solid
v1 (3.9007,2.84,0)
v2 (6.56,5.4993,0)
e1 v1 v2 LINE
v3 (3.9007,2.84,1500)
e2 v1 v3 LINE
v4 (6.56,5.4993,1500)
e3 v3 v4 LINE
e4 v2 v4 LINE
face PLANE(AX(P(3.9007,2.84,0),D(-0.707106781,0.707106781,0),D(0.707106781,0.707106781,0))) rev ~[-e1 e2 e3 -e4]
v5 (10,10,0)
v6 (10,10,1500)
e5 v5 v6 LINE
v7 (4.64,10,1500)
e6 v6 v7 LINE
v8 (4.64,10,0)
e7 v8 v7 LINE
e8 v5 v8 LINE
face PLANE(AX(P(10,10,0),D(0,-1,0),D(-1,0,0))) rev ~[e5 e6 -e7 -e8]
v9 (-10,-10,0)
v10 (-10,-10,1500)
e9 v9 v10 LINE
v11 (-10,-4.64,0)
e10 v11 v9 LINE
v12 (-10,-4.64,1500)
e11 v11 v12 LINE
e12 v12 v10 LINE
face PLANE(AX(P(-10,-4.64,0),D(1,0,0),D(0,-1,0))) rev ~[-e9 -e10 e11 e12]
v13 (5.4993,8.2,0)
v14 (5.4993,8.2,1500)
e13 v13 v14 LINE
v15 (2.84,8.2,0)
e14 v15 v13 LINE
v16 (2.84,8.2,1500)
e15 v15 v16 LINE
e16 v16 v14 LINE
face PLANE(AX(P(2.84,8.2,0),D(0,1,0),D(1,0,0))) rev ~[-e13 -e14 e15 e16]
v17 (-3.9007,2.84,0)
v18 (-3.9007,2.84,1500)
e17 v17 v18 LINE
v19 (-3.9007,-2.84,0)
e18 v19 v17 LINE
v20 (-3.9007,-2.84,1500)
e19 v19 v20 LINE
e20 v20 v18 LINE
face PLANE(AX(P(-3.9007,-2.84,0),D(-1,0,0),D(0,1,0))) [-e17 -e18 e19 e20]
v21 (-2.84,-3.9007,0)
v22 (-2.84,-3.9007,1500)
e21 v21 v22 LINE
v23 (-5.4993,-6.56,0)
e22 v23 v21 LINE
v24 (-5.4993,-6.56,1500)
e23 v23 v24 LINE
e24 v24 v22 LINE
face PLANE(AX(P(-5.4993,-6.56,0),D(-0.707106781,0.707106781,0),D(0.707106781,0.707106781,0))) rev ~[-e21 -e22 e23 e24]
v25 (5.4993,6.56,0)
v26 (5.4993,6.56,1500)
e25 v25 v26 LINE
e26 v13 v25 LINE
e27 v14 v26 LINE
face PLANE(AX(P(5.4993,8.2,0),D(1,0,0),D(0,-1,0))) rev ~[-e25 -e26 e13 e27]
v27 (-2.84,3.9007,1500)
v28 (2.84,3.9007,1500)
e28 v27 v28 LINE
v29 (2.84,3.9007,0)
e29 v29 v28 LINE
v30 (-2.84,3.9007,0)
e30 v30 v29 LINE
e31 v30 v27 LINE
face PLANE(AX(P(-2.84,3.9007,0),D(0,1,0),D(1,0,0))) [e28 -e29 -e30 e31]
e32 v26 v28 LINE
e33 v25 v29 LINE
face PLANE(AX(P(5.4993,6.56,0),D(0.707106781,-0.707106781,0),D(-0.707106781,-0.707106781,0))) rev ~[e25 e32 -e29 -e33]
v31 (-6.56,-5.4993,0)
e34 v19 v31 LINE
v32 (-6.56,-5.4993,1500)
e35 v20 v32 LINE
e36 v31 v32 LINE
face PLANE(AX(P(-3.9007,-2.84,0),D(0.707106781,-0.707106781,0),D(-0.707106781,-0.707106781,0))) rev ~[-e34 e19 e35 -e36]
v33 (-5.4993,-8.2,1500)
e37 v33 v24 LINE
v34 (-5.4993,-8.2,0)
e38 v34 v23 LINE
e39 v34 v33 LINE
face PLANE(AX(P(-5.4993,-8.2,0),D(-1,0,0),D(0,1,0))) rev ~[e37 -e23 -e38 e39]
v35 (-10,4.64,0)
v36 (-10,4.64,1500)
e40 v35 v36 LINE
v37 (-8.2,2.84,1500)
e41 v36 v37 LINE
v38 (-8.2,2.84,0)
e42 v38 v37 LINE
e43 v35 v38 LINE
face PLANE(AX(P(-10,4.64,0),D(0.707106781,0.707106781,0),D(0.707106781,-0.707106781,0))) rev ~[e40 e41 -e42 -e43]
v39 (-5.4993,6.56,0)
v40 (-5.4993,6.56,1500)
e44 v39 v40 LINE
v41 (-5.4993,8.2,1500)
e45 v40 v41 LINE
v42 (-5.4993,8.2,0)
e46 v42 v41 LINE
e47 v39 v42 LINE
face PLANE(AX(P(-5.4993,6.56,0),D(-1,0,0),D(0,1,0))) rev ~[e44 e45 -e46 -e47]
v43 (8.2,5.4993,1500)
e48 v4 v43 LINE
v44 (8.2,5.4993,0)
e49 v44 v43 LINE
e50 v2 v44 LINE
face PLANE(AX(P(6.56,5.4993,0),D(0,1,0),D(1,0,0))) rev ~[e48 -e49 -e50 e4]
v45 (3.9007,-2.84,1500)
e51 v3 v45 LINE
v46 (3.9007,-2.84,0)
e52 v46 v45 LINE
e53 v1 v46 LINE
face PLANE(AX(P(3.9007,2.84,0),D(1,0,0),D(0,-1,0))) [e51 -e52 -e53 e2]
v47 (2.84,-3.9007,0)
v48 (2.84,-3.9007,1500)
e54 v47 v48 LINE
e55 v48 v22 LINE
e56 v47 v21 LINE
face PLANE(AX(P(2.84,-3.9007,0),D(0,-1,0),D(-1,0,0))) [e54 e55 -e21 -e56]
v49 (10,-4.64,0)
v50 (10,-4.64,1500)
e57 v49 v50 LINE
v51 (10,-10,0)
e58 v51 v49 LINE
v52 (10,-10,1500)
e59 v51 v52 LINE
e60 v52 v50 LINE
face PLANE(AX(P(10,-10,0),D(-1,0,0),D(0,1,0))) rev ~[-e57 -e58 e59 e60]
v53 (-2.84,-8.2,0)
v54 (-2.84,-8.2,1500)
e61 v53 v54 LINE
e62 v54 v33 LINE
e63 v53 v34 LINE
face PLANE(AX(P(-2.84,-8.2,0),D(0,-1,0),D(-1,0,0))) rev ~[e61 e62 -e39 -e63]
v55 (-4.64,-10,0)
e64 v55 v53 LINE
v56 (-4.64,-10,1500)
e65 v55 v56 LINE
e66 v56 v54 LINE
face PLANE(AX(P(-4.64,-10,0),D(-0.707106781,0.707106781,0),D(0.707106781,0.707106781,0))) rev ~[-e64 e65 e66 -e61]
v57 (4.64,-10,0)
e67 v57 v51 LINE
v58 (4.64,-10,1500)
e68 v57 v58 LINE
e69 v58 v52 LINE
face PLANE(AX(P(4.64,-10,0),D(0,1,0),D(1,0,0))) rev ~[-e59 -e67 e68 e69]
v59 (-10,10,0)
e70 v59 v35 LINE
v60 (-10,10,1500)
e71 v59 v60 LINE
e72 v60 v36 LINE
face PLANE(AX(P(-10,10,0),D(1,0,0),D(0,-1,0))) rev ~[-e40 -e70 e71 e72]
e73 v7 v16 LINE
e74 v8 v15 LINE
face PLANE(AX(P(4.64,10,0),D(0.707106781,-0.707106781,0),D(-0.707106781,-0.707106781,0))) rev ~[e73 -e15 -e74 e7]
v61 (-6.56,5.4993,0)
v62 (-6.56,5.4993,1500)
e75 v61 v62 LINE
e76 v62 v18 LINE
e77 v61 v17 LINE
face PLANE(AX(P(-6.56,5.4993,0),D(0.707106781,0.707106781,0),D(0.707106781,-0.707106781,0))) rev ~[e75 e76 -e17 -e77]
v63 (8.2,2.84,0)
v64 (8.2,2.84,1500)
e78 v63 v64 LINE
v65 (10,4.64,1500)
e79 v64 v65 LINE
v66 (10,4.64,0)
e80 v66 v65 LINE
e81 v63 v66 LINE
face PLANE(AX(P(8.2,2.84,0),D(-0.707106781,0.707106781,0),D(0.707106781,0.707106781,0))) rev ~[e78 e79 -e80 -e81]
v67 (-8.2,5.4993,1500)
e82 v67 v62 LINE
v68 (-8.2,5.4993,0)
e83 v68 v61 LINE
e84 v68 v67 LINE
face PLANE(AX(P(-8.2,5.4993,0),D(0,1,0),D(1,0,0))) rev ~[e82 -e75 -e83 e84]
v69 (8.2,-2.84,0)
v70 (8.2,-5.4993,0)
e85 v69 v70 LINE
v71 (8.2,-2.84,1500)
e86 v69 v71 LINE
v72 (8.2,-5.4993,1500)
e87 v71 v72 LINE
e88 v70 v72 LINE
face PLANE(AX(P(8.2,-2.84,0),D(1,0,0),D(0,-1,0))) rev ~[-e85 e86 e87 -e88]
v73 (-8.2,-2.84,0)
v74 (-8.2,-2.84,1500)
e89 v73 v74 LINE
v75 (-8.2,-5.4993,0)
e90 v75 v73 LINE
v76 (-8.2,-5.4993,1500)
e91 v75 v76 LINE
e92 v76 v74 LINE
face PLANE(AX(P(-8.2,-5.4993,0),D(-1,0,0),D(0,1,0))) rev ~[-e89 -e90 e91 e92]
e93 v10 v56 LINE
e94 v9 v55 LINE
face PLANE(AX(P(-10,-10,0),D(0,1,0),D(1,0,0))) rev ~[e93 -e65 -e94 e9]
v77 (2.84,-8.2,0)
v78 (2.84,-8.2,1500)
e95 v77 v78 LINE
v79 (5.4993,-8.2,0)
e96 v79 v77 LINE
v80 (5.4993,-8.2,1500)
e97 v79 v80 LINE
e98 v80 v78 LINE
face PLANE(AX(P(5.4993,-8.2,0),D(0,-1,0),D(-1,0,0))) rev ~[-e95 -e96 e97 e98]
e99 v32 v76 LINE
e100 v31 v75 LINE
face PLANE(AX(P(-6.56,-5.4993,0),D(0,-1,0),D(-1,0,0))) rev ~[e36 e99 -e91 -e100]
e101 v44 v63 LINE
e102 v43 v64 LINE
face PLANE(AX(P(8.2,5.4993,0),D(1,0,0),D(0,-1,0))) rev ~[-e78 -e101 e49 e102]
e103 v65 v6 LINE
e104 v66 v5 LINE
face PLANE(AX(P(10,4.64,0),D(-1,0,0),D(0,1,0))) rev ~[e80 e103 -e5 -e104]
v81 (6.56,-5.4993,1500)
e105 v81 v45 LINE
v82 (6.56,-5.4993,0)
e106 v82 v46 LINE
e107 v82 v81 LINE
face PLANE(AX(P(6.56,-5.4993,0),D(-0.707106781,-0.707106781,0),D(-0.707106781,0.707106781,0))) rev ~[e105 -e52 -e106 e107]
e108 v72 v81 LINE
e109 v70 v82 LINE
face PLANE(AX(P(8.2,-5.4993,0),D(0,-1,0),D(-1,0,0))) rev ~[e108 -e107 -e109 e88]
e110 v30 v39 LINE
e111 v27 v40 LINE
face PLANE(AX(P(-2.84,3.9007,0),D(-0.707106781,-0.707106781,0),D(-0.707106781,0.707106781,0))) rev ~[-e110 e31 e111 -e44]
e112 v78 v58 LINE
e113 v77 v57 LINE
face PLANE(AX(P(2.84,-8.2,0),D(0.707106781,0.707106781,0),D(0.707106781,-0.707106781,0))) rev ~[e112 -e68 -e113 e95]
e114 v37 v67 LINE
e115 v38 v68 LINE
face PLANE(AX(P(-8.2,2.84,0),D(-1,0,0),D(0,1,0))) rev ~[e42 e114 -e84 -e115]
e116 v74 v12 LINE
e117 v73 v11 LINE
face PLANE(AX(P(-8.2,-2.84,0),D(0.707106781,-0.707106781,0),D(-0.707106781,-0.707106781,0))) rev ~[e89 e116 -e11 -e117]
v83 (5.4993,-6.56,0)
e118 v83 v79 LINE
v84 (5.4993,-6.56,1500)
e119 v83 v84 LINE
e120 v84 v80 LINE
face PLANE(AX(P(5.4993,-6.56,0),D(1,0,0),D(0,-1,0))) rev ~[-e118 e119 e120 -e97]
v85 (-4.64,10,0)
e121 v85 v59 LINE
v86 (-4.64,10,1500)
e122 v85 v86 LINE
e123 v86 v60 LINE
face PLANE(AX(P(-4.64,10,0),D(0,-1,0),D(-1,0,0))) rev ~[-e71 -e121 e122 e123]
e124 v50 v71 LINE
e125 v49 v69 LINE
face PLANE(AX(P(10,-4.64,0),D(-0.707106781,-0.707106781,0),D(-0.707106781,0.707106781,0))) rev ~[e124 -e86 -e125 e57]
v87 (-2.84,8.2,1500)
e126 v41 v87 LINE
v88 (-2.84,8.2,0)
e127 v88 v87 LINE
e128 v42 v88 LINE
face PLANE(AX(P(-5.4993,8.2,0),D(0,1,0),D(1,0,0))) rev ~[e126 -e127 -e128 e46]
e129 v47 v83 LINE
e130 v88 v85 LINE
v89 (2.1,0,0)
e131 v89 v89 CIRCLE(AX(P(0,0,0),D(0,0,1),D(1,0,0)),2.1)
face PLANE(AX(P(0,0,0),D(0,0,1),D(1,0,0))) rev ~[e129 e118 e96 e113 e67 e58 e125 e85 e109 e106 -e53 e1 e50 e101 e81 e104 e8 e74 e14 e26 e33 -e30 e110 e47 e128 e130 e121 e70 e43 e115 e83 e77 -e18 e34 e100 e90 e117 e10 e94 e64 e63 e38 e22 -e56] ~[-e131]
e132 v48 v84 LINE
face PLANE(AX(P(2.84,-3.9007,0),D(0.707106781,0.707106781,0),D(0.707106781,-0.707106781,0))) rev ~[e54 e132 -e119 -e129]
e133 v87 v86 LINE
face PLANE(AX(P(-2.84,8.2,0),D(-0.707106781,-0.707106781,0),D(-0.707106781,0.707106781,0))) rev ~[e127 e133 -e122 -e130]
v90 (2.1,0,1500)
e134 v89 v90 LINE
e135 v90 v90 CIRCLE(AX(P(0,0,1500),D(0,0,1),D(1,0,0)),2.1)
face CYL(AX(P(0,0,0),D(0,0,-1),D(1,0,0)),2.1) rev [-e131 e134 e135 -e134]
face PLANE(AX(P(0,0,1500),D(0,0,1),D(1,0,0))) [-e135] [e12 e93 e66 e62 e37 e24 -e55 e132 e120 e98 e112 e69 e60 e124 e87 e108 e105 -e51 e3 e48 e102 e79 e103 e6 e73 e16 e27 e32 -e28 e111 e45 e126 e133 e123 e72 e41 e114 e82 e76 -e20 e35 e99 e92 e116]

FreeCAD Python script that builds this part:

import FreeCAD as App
import Part
import Sketcher

V = App.Vector
Q = App.Units.Quantity

doc = App.newDocument("Part")
params = doc.addObject("Spreadsheet::Sheet", "Params")
for row, (alias, value) in enumerate([
    ("sketch1_diameter", "4.2 mm"),
    ("sketch1_width", "1.64 mm"),
    ("pad1_length", "1500 mm"),
], start=1):
    params.set(f"A{row}", alias)
    params.set(f"B{row}", "=" + value)
    params.setAlias(f"B{row}", alias)

body = doc.addObject("PartDesign::Body", "Body")

# Sketch on XY plane
sketch1 = body.newObject("Sketcher::SketchObject", "Sketch")
sketch1.AttachmentSupport = (doc.getObject("XY_Plane"), [""])
sketch1.MapMode = "FlatFace"
sketch1.addGeometry(Part.LineSegment(V(-6.56, 5.4993, 0), V(-3.9007, 2.84, 0)), False)
sketch1.addGeometry(Part.LineSegment(V(-3.9007, 2.84, 0), V(-3.9007, -2.84, 0)), False)
sketch1.addGeometry(Part.LineSegment(V(-3.9007, -2.84, 0), V(-6.56, -5.4993, 0)), False)
sketch1.addGeometry(Part.LineSegment(V(-6.56, -5.4993, 0), V(-8.2, -5.4993, 0)), False)
sketch1.addGeometry(Part.LineSegment(V(-8.2, -5.4993, 0), V(-8.2, -2.84, 0)), False)
sketch1.addGeometry(Part.LineSegment(V(-8.2, -2.84, 0), V(-10, -4.64, 0)), False)
sketch1.addGeometry(Part.LineSegment(V(-10, -4.64, 0), V(-10, -10, 0)), False)
sketch1.addGeometry(Part.LineSegment(V(-10, -10, 0), V(-4.64, -10, 0)), False)
sketch1.addGeometry(Part.LineSegment(V(-4.64, -10, 0), V(-2.84, -8.2, 0)), False)
sketch1.addGeometry(Part.LineSegment(V(-2.84, -8.2, 0), V(-5.4993, -8.2, 0)), False)
sketch1.addGeometry(Part.LineSegment(V(-5.4993, -8.2, 0), V(-5.4993, -6.56, 0)), False)
sketch1.addGeometry(Part.LineSegment(V(-5.4993, -6.56, 0), V(-2.84, -3.9007, 0)), False)
sketch1.addGeometry(Part.LineSegment(V(-2.84, -3.9007, 0), V(2.84, -3.9007, 0)), False)
sketch1.addGeometry(Part.LineSegment(V(2.84, -3.9007, 0), V(5.4993, -6.56, 0)), False)
sketch1.addGeometry(Part.LineSegment(V(5.4993, -6.56, 0), V(5.4993, -8.2, 0)), False)
sketch1.addGeometry(Part.LineSegment(V(5.4993, -8.2, 0), V(2.84, -8.2, 0)), False)
sketch1.addGeometry(Part.LineSegment(V(2.84, -8.2, 0), V(4.64, -10, 0)), False)
sketch1.addGeometry(Part.LineSegment(V(4.64, -10, 0), V(10, -10, 0)), False)
sketch1.addGeometry(Part.LineSegment(V(10, -10, 0), V(10, -4.64, 0)), False)
sketch1.addGeometry(Part.LineSegment(V(10, -4.64, 0), V(8.2, -2.84, 0)), False)
sketch1.addGeometry(Part.LineSegment(V(8.2, -2.84, 0), V(8.2, -5.4993, 0)), False)
sketch1.addGeometry(Part.LineSegment(V(8.2, -5.4993, 0), V(6.56, -5.4993, 0)), False)
sketch1.addGeometry(Part.LineSegment(V(6.56, -5.4993, 0), V(3.9007, -2.84, 0)), False)
sketch1.addGeometry(Part.LineSegment(V(3.9007, -2.84, 0), V(3.9007, 2.84, 0)), False)
sketch1.addGeometry(Part.LineSegment(V(3.9007, 2.84, 0), V(6.56, 5.4993, 0)), False)
sketch1.addGeometry(Part.LineSegment(V(6.56, 5.4993, 0), V(8.2, 5.4993, 0)), False)
sketch1.addGeometry(Part.LineSegment(V(8.2, 5.4993, 0), V(8.2, 2.84, 0)), False)
sketch1.addGeometry(Part.LineSegment(V(8.2, 2.84, 0), V(10, 4.64, 0)), False)
sketch1.addGeometry(Part.LineSegment(V(10, 4.64, 0), V(10, 10, 0)), False)
sketch1.addGeometry(Part.LineSegment(V(10, 10, 0), V(4.64, 10, 0)), False)
sketch1.addGeometry(Part.LineSegment(V(4.64, 10, 0), V(2.84, 8.2, 0)), False)
sketch1.addGeometry(Part.LineSegment(V(2.84, 8.2, 0), V(5.4993, 8.2, 0)), False)
sketch1.addGeometry(Part.LineSegment(V(5.4993, 8.2, 0), V(5.4993, 6.56, 0)), False)
sketch1.addGeometry(Part.LineSegment(V(5.4993, 6.56, 0), V(2.84, 3.9007, 0)), False)
sketch1.addGeometry(Part.LineSegment(V(2.84, 3.9007, 0), V(-2.84, 3.9007, 0)), False)
sketch1.addGeometry(Part.LineSegment(V(-2.84, 3.9007, 0), V(-5.4993, 6.56, 0)), False)
sketch1.addGeometry(Part.LineSegment(V(-5.4993, 6.56, 0), V(-5.4993, 8.2, 0)), False)
sketch1.addGeometry(Part.LineSegment(V(-5.4993, 8.2, 0), V(-2.84, 8.2, 0)), False)
sketch1.addGeometry(Part.LineSegment(V(-2.84, 8.2, 0), V(-4.64, 10, 0)), False)
sketch1.addGeometry(Part.LineSegment(V(-4.64, 10, 0), V(-10, 10, 0)), False)
sketch1.addGeometry(Part.LineSegment(V(-10, 10, 0), V(-10, 4.64, 0)), False)
sketch1.addGeometry(Part.LineSegment(V(-10, 4.64, 0), V(-8.2, 2.84, 0)), False)
sketch1.addGeometry(Part.LineSegment(V(-8.2, 2.84, 0), V(-8.2, 5.4993, 0)), False)
sketch1.addGeometry(Part.LineSegment(V(-8.2, 5.4993, 0), V(-6.56, 5.4993, 0)), False)
sketch1.addGeometry(Part.Circle(V(0, 0, 0), V(0, 0, 1), 2.1), False)
sketch1.addConstraint(Sketcher.Constraint("Coincident", 0, 2, 1, 1))
sketch1.addConstraint(Sketcher.Constraint("Coincident", 1, 2, 2, 1))
sketch1.addConstraint(Sketcher.Constraint("Coincident", 2, 2, 3, 1))
sketch1.addConstraint(Sketcher.Constraint("Coincident", 3, 2, 4, 1))
sketch1.addConstraint(Sketcher.Constraint("Coincident", 4, 2, 5, 1))
sketch1.addConstraint(Sketcher.Constraint("Coincident", 5, 2, 6, 1))
sketch1.addConstraint(Sketcher.Constraint("Coincident", 6, 2, 7, 1))
sketch1.addConstraint(Sketcher.Constraint("Coincident", 7, 2, 8, 1))
sketch1.addConstraint(Sketcher.Constraint("Coincident", 8, 2, 9, 1))
sketch1.addConstraint(Sketcher.Constraint("Coincident", 9, 2, 10, 1))
sketch1.addConstraint(Sketcher.Constraint("Coincident", 10, 2, 11, 1))
sketch1.addConstraint(Sketcher.Constraint("Coincident", 11, 2, 12, 1))
sketch1.addConstraint(Sketcher.Constraint("Coincident", 12, 2, 13, 1))
sketch1.addConstraint(Sketcher.Constraint("Coincident", 13, 2, 14, 1))
sketch1.addConstraint(Sketcher.Constraint("Coincident", 14, 2, 15, 1))
sketch1.addConstraint(Sketcher.Constraint("Coincident", 15, 2, 16, 1))
sketch1.addConstraint(Sketcher.Constraint("Coincident", 16, 2, 17, 1))
sketch1.addConstraint(Sketcher.Constraint("Coincident", 17, 2, 18, 1))
sketch1.addConstraint(Sketcher.Constraint("Coincident", 18, 2, 19, 1))
sketch1.addConstraint(Sketcher.Constraint("Coincident", 19, 2, 20, 1))
sketch1.addConstraint(Sketcher.Constraint("Coincident", 20, 2, 21, 1))
sketch1.addConstraint(Sketcher.Constraint("Coincident", 21, 2, 22, 1))
sketch1.addConstraint(Sketcher.Constraint("Coincident", 22, 2, 23, 1))
sketch1.addConstraint(Sketcher.Constraint("Coincident", 23, 2, 24, 1))
sketch1.addConstraint(Sketcher.Constraint("Coincident", 24, 2, 25, 1))
sketch1.addConstraint(Sketcher.Constraint("Coincident", 25, 2, 26, 1))
sketch1.addConstraint(Sketcher.Constraint("Coincident", 26, 2, 27, 1))
sketch1.addConstraint(Sketcher.Constraint("Coincident", 27, 2, 28, 1))
sketch1.addConstraint(Sketcher.Constraint("Coincident", 28, 2, 29, 1))
sketch1.addConstraint(Sketcher.Constraint("Coincident", 29, 2, 30, 1))
sketch1.addConstraint(Sketcher.Constraint("Coincident", 30, 2, 31, 1))
sketch1.addConstraint(Sketcher.Constraint("Coincident", 31, 2, 32, 1))
sketch1.addConstraint(Sketcher.Constraint("Coincident", 32, 2, 33, 1))
sketch1.addConstraint(Sketcher.Constraint("Coincident", 33, 2, 34, 1))
sketch1.addConstraint(Sketcher.Constraint("Coincident", 34, 2, 35, 1))
sketch1.addConstraint(Sketcher.Constraint("Coincident", 35, 2, 36, 1))
sketch1.addConstraint(Sketcher.Constraint("Coincident", 36, 2, 37, 1))
sketch1.addConstraint(Sketcher.Constraint("Coincident", 37, 2, 38, 1))
sketch1.addConstraint(Sketcher.Constraint("Coincident", 38, 2, 39, 1))
sketch1.addConstraint(Sketcher.Constraint("Coincident", 39, 2, 40, 1))
sketch1.addConstraint(Sketcher.Constraint("Coincident", 40, 2, 41, 1))
sketch1.addConstraint(Sketcher.Constraint("Coincident", 41, 2, 42, 1))
sketch1.addConstraint(Sketcher.Constraint("Coincident", 42, 2, 43, 1))
sketch1.addConstraint(Sketcher.Constraint("Coincident", 43, 2, 0, 1))
sketch1.addConstraint(Sketcher.Constraint("Vertical", 1))
sketch1.addConstraint(Sketcher.Constraint("Horizontal", 3))
sketch1.addConstraint(Sketcher.Constraint("Vertical", 4))
sketch1.addConstraint(Sketcher.Constraint("Vertical", 6))
sketch1.addConstraint(Sketcher.Constraint("Horizontal", 7))
sketch1.addConstraint(Sketcher.Constraint("Horizontal", 9))
sketch1.addConstraint(Sketcher.Constraint("Vertical", 10))
sketch1.addConstraint(Sketcher.Constraint("Horizontal", 12))
sketch1.addConstraint(Sketcher.Constraint("Vertical", 14))
sketch1.addConstraint(Sketcher.Constraint("Horizontal", 15))
sketch1.addConstraint(Sketcher.Constraint("Horizontal", 17))
sketch1.addConstraint(Sketcher.Constraint("Vertical", 18))
sketch1.addConstraint(Sketcher.Constraint("Vertical", 20))
sketch1.addConstraint(Sketcher.Constraint("Horizontal", 21))
sketch1.addConstraint(Sketcher.Constraint("Vertical", 23))
sketch1.addConstraint(Sketcher.Constraint("Horizontal", 25))
sketch1.addConstraint(Sketcher.Constraint("Vertical", 26))
sketch1.addConstraint(Sketcher.Constraint("Vertical", 28))
sketch1.addConstraint(Sketcher.Constraint("Horizontal", 29))
sketch1.addConstraint(Sketcher.Constraint("Horizontal", 31))
sketch1.addConstraint(Sketcher.Constraint("Vertical", 32))
sketch1.addConstraint(Sketcher.Constraint("Horizontal", 34))
sketch1.addConstraint(Sketcher.Constraint("Vertical", 36))
sketch1.addConstraint(Sketcher.Constraint("Horizontal", 37))
sketch1.addConstraint(Sketcher.Constraint("Horizontal", 39))
sketch1.addConstraint(Sketcher.Constraint("Vertical", 40))
sketch1.addConstraint(Sketcher.Constraint("Vertical", 42))
sketch1.addConstraint(Sketcher.Constraint("Horizontal", 43))
sketch1.addConstraint(Sketcher.Constraint("Coincident", 44, 3, -1, 1))
sketch1.addConstraint(Sketcher.Constraint("Symmetric", 0, 2, 22, 2, -1, 1))
sketch1.addConstraint(Sketcher.Constraint("Symmetric", 2, 2, 24, 2, -1, 1))
sketch1.addConstraint(Sketcher.Constraint("Symmetric", 4, 2, 26, 2, -1, 1))
sketch1.addConstraint(Sketcher.Constraint("Symmetric", 5, 2, 27, 2, -1, 1))
sketch1.addConstraint(Sketcher.Constraint("Symmetric", 7, 2, 29, 2, -1, 1))
sketch1.addConstraint(Sketcher.Constraint("Symmetric", 8, 2, 30, 2, -1, 1))
sketch1.addConstraint(Sketcher.Constraint("Symmetric", 10, 2, 32, 2, -1, 1))
sketch1.addConstraint(Sketcher.Constraint("Symmetric", 11, 2, 33, 2, -1, 1))
sketch1.addConstraint(Sketcher.Constraint("Symmetric", 13, 2, 35, 2, -1, 1))
sketch1.addConstraint(Sketcher.Constraint("Symmetric", 15, 2, 37, 2, -1, 1))
sketch1.addConstraint(Sketcher.Constraint("Symmetric", 16, 2, 38, 2, -1, 1))
sketch1.addConstraint(Sketcher.Constraint("Symmetric", 18, 2, 40, 2, -1, 1))
sketch1.addConstraint(Sketcher.Constraint("Symmetric", 19, 2, 41, 2, -1, 1))
sketch1.addConstraint(Sketcher.Constraint("Symmetric", 21, 2, 43, 2, -1, 1))
sketch1.addConstraint(Sketcher.Constraint("Symmetric", 10, 2, 13, 2, -2))
sketch1.addConstraint(Sketcher.Constraint("Symmetric", 8, 2, 15, 2, -2))
sketch1.addConstraint(Sketcher.Constraint("Symmetric", 7, 2, 16, 2, -2))
sketch1.addConstraint(Sketcher.Constraint("Symmetric", 5, 2, 18, 2, -2))
sketch1.addConstraint(Sketcher.Constraint("Symmetric", 4, 2, 19, 2, -2))
sketch1.addConstraint(Sketcher.Constraint("Symmetric", 2, 2, 21, 2, -2))
sketch1.addConstraint(Sketcher.Constraint("Perpendicular", 0, 2))
sketch1.addConstraint(Sketcher.Constraint("Parallel", 2, 5))
sketch1.addConstraint(Sketcher.Constraint("Parallel", 5, 8))
sketch1.addConstraint(Sketcher.Constraint("Parallel", 8, 11))
sketch1.addConstraint(Sketcher.Constraint("Perpendicular", 11, 13))
sketch1.addConstraint(Sketcher.Constraint("Parallel", 13, 16))
sketch1.addConstraint(Sketcher.Constraint("Perpendicular", 22, 24))
sketch1.addConstraint(Sketcher.Constraint("Perpendicular", 33, 35))
sketch1.addConstraint(Sketcher.Constraint("Horizontal", 1, 2, 4, 2))
sketch1.addConstraint(Sketcher.Constraint("Vertical", 8, 2, 11, 2))
sketch1.addConstraint(Sketcher.Constraint("Equal", 34, 1))
sketch1.addConstraint(Sketcher.Constraint("Equal", 37, 4))
sketch1.addConstraint(Sketcher.Constraint("Equal", 39, 6))
sketch1.addConstraint(Sketcher.Constraint("Equal", 43, 10))
sketch1.addConstraint(Sketcher.Constraint("Equal", 5, 8))
sketch1.addConstraint(Sketcher.Constraint("Diameter", 44, Q("4.2 mm")))
sketch1.addConstraint(Sketcher.Constraint("DistanceX", 5, 2, -1, 1, Q("10 mm")))
sketch1.addConstraint(Sketcher.Constraint("DistanceX", 3, 2, 3, 1, Q("1.64 mm")))
sketch1.addConstraint(Sketcher.Constraint("DistanceX", 5, 2, 3, 2, Q("1.8 mm")))
sketch1.addConstraint(Sketcher.Constraint("DistanceY", -1, 1, 0, 2, Q("2.84 mm")))
sketch1.addConstraint(Sketcher.Constraint("DistanceX", 9, 2, 9, 1, Q("2.6593 mm")))
sketch1.setExpression("Constraints[108]", "Params.sketch1_diameter")
sketch1.setExpression("Constraints[110]", "Params.sketch1_width")
pad1 = body.newObject("PartDesign::Pad", "Pad")
pad1.Profile = sketch1
pad1.setExpression("Length", "Params.pad1_length")

doc.recompute()
